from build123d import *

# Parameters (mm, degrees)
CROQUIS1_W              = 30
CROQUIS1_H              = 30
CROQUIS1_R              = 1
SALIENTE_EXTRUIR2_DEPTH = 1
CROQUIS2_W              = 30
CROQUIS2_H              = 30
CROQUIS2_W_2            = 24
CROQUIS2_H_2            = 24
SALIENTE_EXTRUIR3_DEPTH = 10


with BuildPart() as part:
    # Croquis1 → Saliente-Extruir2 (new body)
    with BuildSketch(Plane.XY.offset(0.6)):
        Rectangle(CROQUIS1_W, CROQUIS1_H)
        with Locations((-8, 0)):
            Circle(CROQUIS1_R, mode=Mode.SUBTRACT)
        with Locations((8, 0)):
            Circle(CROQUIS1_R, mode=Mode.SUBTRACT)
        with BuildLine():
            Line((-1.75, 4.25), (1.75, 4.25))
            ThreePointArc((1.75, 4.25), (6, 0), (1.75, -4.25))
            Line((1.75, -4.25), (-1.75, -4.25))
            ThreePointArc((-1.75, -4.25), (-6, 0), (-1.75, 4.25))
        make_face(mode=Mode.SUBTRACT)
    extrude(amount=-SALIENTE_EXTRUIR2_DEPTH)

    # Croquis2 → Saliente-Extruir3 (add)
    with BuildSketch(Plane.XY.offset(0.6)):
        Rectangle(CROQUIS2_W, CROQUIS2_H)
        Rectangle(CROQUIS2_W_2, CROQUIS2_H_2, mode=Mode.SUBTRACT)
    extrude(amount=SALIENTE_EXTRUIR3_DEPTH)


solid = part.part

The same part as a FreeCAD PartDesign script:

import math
import FreeCAD as App
import Part
import Sketcher

V = App.Vector
Q = App.Units.Quantity


def add_polygon(sketch, points):
    """Adds a closed chain of lines whose ends are joined by coincident constraints."""
    first, n = sketch.GeometryCount, len(points)
    for a, b in zip(points, points[1:] + points[:1]):
        sketch.addGeometry(Part.LineSegment(App.Vector(*a, 0), App.Vector(*b, 0)), False)
    for i in range(n):
        sketch.addConstraint(Sketcher.Constraint("Coincident", first + i, 2, first + (i + 1) % n, 1))

doc = App.newDocument("Part")
body = doc.addObject("PartDesign::Body", "Body")

sketch1 = body.newObject("Sketcher::SketchObject", "Sketch")
sketch1.AttachmentSupport = (doc.getObject("XY_Plane"), [""])
sketch1.MapMode = "FlatFace"
sketch1.AttachmentOffset = App.Placement(V(0, 0, 0.6), App.Rotation())
add_polygon(sketch1, [(-15, 15), (-15, -15), (15, -15), (15, 15)])
sketch1.addGeometry(Part.Circle(V(-8, 0, 0), V(0, 0, 1), 1), False)
sketch1.addGeometry(Part.ArcOfCircle(Part.Circle(V(-1.8, 0, 0), V(0, 0, 1), 4.2), math.radians(90), math.radians(270)), False)
sketch1.addGeometry(Part.LineSegment(V(-1.8, 4.2, 0), V(1.8, 4.2, 0)), False)
sketch1.addGeometry(Part.ArcOfCircle(Part.Circle(V(1.8, 0, 0), V(0, 0, 1), 4.2), math.radians(-90), math.radians(90)), False)
sketch1.addGeometry(Part.LineSegment(V(1.8, -4.2, 0), V(-1.8, -4.2, 0)), False)
sketch1.addGeometry(Part.Circle(V(8, 0, 0), V(0, 0, 1), 1), False)
sketch1.addConstraint([
    Sketcher.Constraint("Tangent", 5, 1, 6, 1),
    Sketcher.Constraint("Tangent", 6, 2, 7, 2),
    Sketcher.Constraint("Tangent", 7, 1, 8, 1),
    Sketcher.Constraint("Tangent", 8, 2, 5, 2),
    Sketcher.Constraint("Vertical", 0),
    Sketcher.Constraint("Horizontal", 1),
    Sketcher.Constraint("Vertical", 2),
    Sketcher.Constraint("Horizontal", 3),
    Sketcher.Constraint("Horizontal", 6),
    Sketcher.Constraint("Horizontal", 8),
    Sketcher.Constraint("Equal", 4, 9),
    Sketcher.Constraint("Symmetric", 5, 3, 7, 3, -1, 1),
    Sketcher.Constraint("Symmetric", 4, 3, 9, 3, -1, 1),
    Sketcher.Constraint("Symmetric", 0, 2, 2, 2, -1, 1),
    Sketcher.Constraint("PointOnObject", 4, 3, -1),
    Sketcher.Constraint("Equal", 3, 0),
    Sketcher.Constraint("Diameter", 4, Q("2 mm")),
    Sketcher.Constraint("DistanceX", 1, 1, 1, 2, Q("30 mm")),
    Sketcher.Constraint("Radius", 5, Q("4.25 mm")),
    Sketcher.Constraint("DistanceX", 6, 1, 6, 2, Q("3.5 mm")),
    Sketcher.Constraint("DistanceX", 4, 3, -1, 1, Q("8 mm")),
])
pad1 = body.newObject("PartDesign::Pad", "Pad")
pad1.Profile = sketch1
pad1.Length = 1
pad1.Reversed = True

sketch2 = body.newObject("Sketcher::SketchObject", "Sketch001")
sketch2.AttachmentSupport = (doc.getObject("XY_Plane"), [""])
sketch2.MapMode = "FlatFace"
sketch2.AttachmentOffset = App.Placement(V(0, 0, 0.6), App.Rotation())
add_polygon(sketch2, [(-15, 15), (-15, -15), (15, -15), (15, 15)])
add_polygon(sketch2, [(12, -12), (-12, -12), (-12, 12), (12, 12)])
sketch2.addConstraint([
    Sketcher.Constraint("Vertical", 0),
    Sketcher.Constraint("Horizontal", 1),
    Sketcher.Constraint("Vertical", 2),
    Sketcher.Constraint("Horizontal", 3),
    Sketcher.Constraint("Horizontal", 4),
    Sketcher.Constraint("Vertical", 5),
    Sketcher.Constraint("Horizontal", 6),
    Sketcher.Constraint("Vertical", 7),
    Sketcher.Constraint("Symmetric", 0, 2, 2, 2, -1, 1),
    Sketcher.Constraint("Symmetric", 4, 2, 6, 2, -1, 1),
    Sketcher.Constraint("Equal", 3, 0),
    Sketcher.Constraint("Equal", 6, 5),
    Sketcher.Constraint("DistanceX", 1, 1, 1, 2, Q("30 mm")),
    Sketcher.Constraint("DistanceX", 4, 2, 4, 1, Q("24 mm")),
])
pad2 = body.newObject("PartDesign::Pad", "Pad001")
pad2.Profile = sketch2
pad2.Length = 10

doc.recompute()
